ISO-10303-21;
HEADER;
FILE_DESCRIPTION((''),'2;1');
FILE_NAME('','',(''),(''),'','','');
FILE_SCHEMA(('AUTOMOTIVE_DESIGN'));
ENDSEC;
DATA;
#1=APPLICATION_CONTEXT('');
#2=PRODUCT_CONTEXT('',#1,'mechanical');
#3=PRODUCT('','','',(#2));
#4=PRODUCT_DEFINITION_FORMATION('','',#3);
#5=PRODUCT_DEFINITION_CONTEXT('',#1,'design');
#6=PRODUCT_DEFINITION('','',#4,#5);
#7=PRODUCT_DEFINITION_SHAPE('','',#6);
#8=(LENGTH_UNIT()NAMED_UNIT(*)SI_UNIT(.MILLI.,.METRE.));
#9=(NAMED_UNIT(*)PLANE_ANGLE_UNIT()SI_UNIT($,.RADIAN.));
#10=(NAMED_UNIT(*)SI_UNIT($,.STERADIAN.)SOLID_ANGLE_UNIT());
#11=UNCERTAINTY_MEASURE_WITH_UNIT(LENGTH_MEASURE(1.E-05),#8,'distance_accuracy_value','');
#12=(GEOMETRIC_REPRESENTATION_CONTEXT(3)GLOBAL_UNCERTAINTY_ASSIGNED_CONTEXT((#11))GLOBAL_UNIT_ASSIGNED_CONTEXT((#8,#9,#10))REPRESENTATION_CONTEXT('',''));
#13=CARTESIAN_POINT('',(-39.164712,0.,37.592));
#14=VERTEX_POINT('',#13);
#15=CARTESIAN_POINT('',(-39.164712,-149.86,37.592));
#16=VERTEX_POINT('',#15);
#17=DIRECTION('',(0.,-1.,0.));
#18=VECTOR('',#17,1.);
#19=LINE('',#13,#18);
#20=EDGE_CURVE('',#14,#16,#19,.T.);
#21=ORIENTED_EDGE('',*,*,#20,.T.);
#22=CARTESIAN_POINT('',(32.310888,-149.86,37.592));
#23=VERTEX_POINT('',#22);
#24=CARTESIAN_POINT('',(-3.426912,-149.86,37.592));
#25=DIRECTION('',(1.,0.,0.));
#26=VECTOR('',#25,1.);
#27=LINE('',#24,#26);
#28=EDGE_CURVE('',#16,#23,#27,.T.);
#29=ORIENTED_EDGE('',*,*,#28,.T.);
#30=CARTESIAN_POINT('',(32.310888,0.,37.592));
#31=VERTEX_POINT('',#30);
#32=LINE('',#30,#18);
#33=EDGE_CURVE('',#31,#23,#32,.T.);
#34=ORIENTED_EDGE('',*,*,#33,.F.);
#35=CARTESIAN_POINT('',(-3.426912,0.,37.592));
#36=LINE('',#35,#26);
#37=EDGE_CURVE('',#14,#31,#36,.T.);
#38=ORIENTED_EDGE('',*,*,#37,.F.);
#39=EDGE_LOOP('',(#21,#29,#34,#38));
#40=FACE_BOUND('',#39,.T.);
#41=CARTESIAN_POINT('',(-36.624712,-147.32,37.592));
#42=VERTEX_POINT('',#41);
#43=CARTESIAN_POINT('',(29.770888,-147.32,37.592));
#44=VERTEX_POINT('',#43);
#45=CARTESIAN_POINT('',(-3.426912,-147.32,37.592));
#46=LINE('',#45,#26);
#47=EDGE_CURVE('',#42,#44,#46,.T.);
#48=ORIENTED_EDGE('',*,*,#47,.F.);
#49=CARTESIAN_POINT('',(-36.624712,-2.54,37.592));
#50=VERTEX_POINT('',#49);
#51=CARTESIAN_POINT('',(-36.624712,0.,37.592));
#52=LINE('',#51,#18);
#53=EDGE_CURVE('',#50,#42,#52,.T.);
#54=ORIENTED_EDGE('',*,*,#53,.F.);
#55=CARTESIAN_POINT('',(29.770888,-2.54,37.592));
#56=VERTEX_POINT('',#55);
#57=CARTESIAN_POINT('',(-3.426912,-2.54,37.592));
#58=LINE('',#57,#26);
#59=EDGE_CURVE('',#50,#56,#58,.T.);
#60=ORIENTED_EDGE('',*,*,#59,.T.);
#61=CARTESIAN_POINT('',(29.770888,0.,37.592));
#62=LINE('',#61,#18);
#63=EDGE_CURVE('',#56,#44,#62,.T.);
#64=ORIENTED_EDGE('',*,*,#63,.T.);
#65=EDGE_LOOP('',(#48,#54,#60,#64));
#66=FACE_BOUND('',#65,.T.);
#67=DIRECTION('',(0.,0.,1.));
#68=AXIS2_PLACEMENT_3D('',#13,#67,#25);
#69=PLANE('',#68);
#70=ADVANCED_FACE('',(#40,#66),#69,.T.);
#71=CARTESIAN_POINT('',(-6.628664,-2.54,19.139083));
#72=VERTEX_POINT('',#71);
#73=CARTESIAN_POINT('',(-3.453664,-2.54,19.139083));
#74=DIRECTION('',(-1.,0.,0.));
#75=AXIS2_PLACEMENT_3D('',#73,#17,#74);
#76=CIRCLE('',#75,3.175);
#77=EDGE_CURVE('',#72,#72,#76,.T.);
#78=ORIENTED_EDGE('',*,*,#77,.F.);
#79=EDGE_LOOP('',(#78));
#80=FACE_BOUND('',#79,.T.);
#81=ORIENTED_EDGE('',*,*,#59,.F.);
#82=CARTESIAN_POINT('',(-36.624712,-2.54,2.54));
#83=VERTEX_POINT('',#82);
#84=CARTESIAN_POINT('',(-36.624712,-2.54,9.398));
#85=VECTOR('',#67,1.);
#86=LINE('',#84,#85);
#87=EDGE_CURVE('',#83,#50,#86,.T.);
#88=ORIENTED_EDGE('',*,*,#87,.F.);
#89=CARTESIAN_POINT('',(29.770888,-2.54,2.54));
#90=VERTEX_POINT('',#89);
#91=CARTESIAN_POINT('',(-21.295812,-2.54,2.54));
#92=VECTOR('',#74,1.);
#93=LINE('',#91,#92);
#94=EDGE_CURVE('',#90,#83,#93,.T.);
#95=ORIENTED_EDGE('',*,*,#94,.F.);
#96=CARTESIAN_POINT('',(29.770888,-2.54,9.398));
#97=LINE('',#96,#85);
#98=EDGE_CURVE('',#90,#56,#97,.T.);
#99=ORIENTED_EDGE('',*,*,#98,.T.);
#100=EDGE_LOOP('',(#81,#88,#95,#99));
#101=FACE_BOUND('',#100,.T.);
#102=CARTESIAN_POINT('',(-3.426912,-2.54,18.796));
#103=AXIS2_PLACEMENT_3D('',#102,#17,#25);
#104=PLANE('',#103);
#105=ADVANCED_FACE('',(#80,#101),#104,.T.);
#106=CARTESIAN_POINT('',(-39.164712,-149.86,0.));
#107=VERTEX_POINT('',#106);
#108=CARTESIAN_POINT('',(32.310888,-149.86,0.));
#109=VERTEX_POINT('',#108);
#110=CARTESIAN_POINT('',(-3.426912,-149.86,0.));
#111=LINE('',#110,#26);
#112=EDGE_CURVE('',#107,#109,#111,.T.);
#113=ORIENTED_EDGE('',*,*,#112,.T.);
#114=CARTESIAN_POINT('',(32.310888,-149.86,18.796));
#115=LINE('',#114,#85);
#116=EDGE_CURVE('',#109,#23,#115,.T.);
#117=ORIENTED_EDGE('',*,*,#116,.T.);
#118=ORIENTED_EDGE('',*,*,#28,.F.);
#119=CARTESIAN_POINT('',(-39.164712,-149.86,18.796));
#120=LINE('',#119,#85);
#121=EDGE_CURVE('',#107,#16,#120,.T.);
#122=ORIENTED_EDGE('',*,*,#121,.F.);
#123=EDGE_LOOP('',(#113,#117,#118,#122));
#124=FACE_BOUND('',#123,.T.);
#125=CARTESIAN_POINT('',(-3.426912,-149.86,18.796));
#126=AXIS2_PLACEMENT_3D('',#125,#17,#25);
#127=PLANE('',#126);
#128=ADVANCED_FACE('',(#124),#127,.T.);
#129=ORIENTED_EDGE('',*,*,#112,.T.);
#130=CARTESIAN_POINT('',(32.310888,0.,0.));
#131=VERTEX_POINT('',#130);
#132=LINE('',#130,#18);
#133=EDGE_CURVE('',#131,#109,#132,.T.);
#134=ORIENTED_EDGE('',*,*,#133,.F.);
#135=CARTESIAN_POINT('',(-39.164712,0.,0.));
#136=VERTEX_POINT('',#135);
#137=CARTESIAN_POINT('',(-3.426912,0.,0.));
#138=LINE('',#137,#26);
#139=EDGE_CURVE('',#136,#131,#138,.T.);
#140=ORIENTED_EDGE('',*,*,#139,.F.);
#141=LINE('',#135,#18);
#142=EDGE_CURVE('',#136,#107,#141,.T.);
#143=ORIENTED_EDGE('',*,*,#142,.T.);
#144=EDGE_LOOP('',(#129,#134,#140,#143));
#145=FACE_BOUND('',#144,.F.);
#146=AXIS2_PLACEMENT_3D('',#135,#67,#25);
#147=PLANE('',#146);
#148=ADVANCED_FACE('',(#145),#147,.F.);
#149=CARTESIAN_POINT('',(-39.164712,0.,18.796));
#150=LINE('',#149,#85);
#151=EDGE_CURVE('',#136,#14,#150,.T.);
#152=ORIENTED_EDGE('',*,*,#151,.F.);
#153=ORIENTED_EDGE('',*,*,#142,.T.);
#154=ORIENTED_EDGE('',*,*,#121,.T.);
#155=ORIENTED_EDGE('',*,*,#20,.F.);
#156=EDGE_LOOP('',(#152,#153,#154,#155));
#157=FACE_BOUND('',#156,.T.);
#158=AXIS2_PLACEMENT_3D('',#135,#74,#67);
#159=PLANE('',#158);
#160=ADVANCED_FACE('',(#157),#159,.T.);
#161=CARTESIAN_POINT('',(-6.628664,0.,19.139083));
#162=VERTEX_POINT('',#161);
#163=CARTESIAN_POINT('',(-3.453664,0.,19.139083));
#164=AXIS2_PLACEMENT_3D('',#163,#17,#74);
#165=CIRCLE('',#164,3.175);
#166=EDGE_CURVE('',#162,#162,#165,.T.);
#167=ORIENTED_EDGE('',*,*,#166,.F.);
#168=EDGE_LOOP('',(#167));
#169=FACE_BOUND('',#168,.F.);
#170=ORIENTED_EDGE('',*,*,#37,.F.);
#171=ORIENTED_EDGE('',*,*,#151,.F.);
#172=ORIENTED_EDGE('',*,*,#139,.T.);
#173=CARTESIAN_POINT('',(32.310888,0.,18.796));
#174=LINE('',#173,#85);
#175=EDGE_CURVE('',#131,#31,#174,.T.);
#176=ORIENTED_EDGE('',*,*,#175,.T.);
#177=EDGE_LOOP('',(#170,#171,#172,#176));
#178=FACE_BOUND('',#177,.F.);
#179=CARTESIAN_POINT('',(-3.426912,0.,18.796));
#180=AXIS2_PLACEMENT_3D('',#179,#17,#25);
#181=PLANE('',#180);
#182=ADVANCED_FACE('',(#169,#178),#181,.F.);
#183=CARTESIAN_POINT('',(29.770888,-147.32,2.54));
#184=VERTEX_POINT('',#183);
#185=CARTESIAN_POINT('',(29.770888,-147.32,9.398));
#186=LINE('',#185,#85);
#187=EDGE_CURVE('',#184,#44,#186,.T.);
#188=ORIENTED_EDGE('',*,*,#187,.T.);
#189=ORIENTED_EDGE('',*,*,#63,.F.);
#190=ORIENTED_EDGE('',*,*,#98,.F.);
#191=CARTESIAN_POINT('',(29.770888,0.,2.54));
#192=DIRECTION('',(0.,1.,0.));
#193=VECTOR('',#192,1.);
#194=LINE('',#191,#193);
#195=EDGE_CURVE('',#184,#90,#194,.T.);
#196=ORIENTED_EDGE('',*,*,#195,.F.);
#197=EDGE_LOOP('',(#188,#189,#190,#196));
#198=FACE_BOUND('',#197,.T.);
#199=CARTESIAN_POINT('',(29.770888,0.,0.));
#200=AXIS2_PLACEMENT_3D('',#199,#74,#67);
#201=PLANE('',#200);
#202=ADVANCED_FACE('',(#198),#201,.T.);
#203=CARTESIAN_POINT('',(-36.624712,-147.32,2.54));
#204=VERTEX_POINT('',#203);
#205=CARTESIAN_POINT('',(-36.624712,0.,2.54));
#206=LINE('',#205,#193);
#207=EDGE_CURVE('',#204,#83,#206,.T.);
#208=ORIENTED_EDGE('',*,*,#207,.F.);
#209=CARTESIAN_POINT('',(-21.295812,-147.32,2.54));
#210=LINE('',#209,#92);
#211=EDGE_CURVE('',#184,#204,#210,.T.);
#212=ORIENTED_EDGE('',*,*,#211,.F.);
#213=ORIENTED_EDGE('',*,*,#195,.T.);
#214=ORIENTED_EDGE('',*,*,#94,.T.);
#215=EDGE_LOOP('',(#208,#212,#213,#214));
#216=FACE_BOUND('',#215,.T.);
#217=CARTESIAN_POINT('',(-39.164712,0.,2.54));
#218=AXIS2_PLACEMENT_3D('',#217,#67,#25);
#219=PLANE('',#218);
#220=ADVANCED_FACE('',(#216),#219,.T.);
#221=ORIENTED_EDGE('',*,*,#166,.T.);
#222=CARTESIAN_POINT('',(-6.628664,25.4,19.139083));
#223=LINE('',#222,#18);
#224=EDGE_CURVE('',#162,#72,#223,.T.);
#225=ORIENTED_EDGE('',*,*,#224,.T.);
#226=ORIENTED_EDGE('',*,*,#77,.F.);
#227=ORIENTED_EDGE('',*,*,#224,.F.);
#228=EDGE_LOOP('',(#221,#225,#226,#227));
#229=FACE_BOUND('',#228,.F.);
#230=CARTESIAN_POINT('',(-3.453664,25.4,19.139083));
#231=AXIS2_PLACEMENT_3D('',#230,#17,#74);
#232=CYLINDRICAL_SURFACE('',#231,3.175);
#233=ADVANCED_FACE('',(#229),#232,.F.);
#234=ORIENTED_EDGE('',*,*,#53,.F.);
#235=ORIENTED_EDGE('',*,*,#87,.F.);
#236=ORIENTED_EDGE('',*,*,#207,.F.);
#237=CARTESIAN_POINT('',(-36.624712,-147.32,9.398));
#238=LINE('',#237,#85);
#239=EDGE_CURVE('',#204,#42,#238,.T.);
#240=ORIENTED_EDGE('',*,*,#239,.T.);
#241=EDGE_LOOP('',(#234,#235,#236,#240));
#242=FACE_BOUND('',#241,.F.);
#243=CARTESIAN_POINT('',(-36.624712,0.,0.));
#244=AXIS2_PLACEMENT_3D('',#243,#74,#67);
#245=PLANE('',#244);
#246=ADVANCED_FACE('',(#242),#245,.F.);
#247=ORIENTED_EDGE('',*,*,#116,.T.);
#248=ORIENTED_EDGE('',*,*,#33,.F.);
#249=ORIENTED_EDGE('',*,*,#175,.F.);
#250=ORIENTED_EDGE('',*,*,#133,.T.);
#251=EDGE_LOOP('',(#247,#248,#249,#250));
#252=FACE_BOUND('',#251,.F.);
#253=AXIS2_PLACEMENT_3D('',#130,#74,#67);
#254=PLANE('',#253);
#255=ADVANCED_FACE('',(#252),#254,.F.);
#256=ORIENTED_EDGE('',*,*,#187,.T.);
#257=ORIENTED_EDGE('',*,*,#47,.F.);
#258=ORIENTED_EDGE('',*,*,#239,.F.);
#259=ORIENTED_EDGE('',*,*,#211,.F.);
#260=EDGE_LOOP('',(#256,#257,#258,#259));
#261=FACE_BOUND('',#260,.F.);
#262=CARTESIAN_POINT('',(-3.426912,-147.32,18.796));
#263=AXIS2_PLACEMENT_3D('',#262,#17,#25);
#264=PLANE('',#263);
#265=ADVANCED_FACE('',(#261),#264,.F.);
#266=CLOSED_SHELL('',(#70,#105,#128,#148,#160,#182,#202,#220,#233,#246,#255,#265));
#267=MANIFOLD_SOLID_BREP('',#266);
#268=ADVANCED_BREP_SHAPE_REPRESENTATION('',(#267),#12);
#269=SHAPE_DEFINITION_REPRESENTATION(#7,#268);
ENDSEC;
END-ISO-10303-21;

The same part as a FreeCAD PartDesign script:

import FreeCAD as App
import Part
import Sketcher

V = App.Vector
Q = App.Units.Quantity


def faces_at(feature, points):
    """Names of the faces that lie closest to the given points."""
    faces = feature.Shape.Faces
    near = lambda p: min(range(len(faces)), key=lambda i: faces[i].distToShape(Part.Vertex(*p))[0])
    return sorted({f"Face{near(p) + 1}" for p in points})

doc = App.newDocument("Part")
body = doc.addObject("PartDesign::Body", "Body")

# Sketch on XZ plane
sketch1 = body.newObject("Sketcher::SketchObject", "Sketch")
sketch1.AttachmentSupport = (doc.getObject("XZ_Plane"), [""])
sketch1.MapMode = "FlatFace"
sketch1.addGeometry([
    Part.LineSegment(V(-39, 38, 0), V(-39, 0, 0)),
    Part.LineSegment(V(-39, 0, 0), V(32, 0, 0)),
    Part.LineSegment(V(32, 0, 0), V(32, 38, 0)),
    Part.LineSegment(V(32, 38, 0), V(-39, 38, 0)),
], False)
sketch1.addConstraint([
    Sketcher.Constraint("Coincident", 0, 2, 1, 1),
    Sketcher.Constraint("Coincident", 1, 2, 2, 1),
    Sketcher.Constraint("Coincident", 2, 2, 3, 1),
    Sketcher.Constraint("Coincident", 3, 2, 0, 1),
    Sketcher.Constraint("Vertical", 0),
    Sketcher.Constraint("Horizontal", 1),
    Sketcher.Constraint("Vertical", 2),
    Sketcher.Constraint("Horizontal", 3),
    Sketcher.Constraint("PointOnObject", 0, 2, -1),
    Sketcher.Constraint("DistanceY", 0, 2, 0, 1, Q("1.48 in")),
    Sketcher.Constraint("DistanceX", 1, 1, 1, 2, Q("2.814 in")),
    Sketcher.Constraint("DistanceX", 0, 2, -1, 1, Q("39.164712 mm")),
])
pad1 = body.newObject("PartDesign::Pad", "Pad")
pad1.Profile = sketch1
pad1.Length = Q("5.9 in")
doc.recompute()

thickness = body.newObject("PartDesign::Thickness", "Thickness")
thickness.Base = (pad1, faces_at(pad1, [(-3.427, -74.93, 37.592)]))
thickness.Value = Q("0.1 in")
thickness.Reversed = True
thickness.Join = "Arc"

# Sketch on XZ plane
sketch2 = body.newObject("Sketcher::SketchObject", "Sketch001")
sketch2.AttachmentSupport = (doc.getObject("XZ_Plane"), [""])
sketch2.MapMode = "FlatFace"
sketch2.addGeometry(Part.Circle(V(-3.5, 19.1, 0), V(0, 0, 1), 3.2), False)
sketch2.addConstraint([
    Sketcher.Constraint("Diameter", 0, Q("0.25 in")),
    Sketcher.Constraint("DistanceX", 0, 3, -1, 1, Q("3.453664 mm")),
    Sketcher.Constraint("DistanceY", -1, 1, 0, 3, Q("19.139083 mm")),
])
doc.recompute()
hole = body.newObject("PartDesign::Hole", "Hole")
hole.Profile = sketch2
hole.ThreadType = "None"
hole.Diameter = Q("0.25 in")
hole.DepthType = "Dimension"
hole.Depth = Q("1 in")
hole.DrillPoint = "Angled"
hole.DrillPointAngle = 118
hole.Reversed = True

doc.recompute()
